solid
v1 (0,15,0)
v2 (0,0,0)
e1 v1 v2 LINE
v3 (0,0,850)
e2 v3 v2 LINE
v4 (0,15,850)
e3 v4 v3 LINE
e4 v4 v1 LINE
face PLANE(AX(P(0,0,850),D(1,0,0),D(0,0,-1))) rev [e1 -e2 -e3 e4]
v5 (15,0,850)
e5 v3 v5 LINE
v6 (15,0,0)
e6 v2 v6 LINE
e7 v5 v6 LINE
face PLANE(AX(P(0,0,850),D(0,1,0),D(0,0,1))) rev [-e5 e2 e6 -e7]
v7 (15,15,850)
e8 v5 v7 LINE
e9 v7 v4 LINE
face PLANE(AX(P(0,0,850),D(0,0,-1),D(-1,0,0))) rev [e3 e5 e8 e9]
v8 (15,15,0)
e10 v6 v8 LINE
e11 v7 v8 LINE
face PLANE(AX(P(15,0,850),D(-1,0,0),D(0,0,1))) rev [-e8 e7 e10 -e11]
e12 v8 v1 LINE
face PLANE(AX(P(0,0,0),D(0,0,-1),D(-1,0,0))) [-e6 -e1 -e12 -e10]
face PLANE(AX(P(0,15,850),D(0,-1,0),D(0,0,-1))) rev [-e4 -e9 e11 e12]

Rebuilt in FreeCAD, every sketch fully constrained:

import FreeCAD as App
import Part
import Sketcher
Q = App.Units.Quantity

doc = App.newDocument("Part")
body = doc.addObject("PartDesign::Body", "Body")

sketch1 = body.newObject("Sketcher::SketchObject", "Sketch")
sketch1.AttachmentSupport = (doc.getObject("XY_Plane"), [""])
sketch1.MapMode = "FlatFace"
sketch1.addGeometry(Part.LineSegment(App.Vector(0, 15, 0), App.Vector(0, 0, 0)), False)
sketch1.addGeometry(Part.LineSegment(App.Vector(0, 0, 0), App.Vector(15, 0, 0)), False)
sketch1.addGeometry(Part.LineSegment(App.Vector(15, 0, 0), App.Vector(15, 15, 0)), False)
sketch1.addGeometry(Part.LineSegment(App.Vector(15, 15, 0), App.Vector(0, 15, 0)), False)
sketch1.addConstraint(Sketcher.Constraint("Coincident", 0, 2, 1, 1))
sketch1.addConstraint(Sketcher.Constraint("Coincident", 1, 2, 2, 1))
sketch1.addConstraint(Sketcher.Constraint("Coincident", 2, 2, 3, 1))
sketch1.addConstraint(Sketcher.Constraint("Coincident", 3, 2, 0, 1))
sketch1.addConstraint(Sketcher.Constraint("Vertical", 0))
sketch1.addConstraint(Sketcher.Constraint("Horizontal", 1))
sketch1.addConstraint(Sketcher.Constraint("Vertical", 2))
sketch1.addConstraint(Sketcher.Constraint("Horizontal", 3))
sketch1.addConstraint(Sketcher.Constraint("Coincident", 0, 2, -1, 1))
sketch1.addConstraint(Sketcher.Constraint("Equal", 3, 0))
sketch1.addConstraint(Sketcher.Constraint("DistanceX", 1, 1, 1, 2, Q("15 mm")))
pad1 = body.newObject("PartDesign::Pad", "Pad")
pad1.Profile = sketch1
pad1.Length = 850

doc.recompute()
